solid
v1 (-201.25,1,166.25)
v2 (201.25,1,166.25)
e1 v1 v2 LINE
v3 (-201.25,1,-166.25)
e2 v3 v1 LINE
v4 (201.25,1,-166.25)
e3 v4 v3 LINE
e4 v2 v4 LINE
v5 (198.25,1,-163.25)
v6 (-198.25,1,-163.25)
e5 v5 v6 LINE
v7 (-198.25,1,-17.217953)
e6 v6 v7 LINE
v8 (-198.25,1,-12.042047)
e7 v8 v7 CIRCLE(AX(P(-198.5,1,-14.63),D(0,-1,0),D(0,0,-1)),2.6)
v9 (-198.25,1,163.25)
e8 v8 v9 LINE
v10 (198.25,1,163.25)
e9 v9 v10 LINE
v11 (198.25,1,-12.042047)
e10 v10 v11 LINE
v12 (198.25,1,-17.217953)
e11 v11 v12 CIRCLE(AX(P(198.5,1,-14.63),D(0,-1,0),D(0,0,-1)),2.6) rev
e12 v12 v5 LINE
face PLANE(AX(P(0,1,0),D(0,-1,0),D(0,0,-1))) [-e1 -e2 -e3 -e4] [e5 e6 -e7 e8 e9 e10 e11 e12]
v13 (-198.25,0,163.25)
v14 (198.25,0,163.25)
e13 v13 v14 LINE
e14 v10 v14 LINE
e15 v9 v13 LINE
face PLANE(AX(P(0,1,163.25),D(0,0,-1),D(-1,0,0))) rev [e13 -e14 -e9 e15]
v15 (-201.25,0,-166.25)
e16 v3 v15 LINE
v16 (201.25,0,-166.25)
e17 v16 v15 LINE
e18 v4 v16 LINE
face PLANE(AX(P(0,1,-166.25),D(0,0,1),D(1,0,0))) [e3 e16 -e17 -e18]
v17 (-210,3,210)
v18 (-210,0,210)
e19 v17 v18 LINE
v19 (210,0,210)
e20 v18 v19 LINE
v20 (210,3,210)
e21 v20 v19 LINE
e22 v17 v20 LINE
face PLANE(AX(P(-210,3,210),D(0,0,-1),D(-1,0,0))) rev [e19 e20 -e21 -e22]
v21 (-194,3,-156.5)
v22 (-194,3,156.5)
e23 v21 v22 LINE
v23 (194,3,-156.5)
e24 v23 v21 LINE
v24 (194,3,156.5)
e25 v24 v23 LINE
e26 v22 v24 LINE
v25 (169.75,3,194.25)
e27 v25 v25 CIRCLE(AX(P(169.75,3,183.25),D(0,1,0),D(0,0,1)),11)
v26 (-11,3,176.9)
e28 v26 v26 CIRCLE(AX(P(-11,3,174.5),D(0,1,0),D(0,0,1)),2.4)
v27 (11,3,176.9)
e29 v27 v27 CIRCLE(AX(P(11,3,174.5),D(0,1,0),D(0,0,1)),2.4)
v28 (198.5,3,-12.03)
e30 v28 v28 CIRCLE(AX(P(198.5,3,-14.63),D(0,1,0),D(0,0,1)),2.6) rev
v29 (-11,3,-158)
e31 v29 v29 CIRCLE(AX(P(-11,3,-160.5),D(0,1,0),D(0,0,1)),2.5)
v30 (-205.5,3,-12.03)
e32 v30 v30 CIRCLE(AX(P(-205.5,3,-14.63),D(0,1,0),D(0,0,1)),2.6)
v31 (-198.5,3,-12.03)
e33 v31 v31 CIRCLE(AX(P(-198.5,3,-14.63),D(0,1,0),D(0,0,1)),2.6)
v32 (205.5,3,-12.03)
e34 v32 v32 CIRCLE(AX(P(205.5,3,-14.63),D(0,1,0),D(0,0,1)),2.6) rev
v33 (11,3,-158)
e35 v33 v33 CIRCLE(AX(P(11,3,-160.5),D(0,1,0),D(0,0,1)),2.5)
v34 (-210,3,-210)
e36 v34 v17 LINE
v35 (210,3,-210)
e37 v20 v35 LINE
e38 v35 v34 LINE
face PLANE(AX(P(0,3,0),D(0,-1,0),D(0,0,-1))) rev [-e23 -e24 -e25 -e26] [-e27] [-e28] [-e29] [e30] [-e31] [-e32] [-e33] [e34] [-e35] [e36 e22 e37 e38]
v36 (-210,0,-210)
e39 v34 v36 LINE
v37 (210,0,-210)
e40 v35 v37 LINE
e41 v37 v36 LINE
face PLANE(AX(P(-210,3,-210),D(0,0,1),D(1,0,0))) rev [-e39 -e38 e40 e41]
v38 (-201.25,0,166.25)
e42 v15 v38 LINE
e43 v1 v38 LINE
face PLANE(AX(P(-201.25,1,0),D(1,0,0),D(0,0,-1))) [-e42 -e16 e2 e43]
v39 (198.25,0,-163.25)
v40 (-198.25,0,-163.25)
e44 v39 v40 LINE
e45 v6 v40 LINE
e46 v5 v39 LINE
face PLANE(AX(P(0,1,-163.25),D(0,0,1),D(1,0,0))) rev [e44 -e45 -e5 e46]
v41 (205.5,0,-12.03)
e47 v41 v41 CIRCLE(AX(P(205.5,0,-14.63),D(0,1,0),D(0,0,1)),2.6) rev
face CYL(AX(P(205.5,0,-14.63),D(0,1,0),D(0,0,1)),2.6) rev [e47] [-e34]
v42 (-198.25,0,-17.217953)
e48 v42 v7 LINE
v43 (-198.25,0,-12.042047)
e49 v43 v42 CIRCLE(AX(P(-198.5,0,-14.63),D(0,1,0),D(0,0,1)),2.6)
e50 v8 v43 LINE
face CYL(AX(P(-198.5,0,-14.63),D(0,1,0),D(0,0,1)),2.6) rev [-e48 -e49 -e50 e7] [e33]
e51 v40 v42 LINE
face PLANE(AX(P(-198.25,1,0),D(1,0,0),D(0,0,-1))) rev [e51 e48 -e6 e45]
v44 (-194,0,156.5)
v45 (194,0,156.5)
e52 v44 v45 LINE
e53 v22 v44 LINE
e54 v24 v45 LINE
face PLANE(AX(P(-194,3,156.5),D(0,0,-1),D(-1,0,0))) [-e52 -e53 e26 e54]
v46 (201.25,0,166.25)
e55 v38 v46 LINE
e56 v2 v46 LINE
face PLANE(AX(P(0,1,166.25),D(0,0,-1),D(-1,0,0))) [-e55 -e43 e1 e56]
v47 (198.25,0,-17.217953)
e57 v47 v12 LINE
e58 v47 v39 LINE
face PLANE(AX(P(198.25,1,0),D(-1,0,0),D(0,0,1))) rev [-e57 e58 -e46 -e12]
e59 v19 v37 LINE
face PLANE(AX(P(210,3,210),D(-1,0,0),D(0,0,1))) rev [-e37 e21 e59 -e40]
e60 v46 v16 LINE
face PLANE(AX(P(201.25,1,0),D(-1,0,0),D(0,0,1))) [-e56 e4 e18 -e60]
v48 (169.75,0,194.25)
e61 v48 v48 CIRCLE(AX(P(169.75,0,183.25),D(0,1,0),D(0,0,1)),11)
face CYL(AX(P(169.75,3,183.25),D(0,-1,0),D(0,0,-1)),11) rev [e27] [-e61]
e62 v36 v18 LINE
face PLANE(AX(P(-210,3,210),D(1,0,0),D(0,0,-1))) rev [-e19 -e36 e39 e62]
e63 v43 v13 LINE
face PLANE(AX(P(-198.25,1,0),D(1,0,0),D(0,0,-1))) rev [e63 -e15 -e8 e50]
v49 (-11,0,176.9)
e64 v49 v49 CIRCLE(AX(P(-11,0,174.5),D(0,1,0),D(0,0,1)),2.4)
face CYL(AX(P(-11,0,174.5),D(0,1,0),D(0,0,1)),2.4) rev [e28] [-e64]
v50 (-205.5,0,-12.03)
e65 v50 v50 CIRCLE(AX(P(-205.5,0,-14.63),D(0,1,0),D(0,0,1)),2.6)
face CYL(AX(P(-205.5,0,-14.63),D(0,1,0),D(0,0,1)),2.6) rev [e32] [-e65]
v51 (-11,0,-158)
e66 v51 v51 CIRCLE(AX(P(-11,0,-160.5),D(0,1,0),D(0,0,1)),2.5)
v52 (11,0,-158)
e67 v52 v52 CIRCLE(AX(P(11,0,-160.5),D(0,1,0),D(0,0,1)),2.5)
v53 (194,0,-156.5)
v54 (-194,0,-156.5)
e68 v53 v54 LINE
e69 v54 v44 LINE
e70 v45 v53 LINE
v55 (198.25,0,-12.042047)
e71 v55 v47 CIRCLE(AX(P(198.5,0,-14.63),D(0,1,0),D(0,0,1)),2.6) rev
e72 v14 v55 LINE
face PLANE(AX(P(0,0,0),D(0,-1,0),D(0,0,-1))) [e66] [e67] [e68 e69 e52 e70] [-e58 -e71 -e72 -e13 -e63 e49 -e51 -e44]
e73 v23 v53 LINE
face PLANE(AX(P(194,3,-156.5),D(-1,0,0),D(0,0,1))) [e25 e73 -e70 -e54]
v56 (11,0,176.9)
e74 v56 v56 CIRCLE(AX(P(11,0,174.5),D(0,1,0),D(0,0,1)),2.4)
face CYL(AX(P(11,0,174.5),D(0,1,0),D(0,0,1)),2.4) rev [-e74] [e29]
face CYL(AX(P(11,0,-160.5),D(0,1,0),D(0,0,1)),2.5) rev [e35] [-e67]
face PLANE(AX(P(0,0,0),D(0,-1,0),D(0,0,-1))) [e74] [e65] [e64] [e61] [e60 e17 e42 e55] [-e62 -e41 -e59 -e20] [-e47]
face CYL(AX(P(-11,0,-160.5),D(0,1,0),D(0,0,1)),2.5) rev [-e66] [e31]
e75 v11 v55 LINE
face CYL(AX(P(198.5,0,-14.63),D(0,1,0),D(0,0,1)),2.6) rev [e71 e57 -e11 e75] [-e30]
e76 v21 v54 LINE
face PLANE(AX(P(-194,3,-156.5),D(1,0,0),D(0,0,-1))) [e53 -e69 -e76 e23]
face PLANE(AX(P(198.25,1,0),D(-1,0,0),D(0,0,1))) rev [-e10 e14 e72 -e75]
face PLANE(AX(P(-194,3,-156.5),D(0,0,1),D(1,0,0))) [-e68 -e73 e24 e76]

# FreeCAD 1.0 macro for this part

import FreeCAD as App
import Part
import Sketcher

V = App.Vector
Q = App.Units.Quantity


def add_polygon(sketch, points):
    """Adds a closed chain of lines whose ends are joined by coincident constraints."""
    first, n = sketch.GeometryCount, len(points)
    for a, b in zip(points, points[1:] + points[:1]):
        sketch.addGeometry(Part.LineSegment(App.Vector(*a, 0), App.Vector(*b, 0)), False)
    for i in range(n):
        sketch.addConstraint(Sketcher.Constraint("Coincident", first + i, 2, first + (i + 1) % n, 1))

doc = App.newDocument("Part")
body = doc.addObject("PartDesign::Body", "Body")

# Sketch on XZ plane
sketch1 = doc.addObject("Sketcher::SketchObject", "Sketch")
body.addObject(sketch1)
sketch1.AttachmentSupport = (doc.XZ_Plane, [""])
sketch1.MapMode = "FlatFace"
add_polygon(sketch1, [(-210, -210), (-210, 210), (210, 210), (210, -210)])  # lines 0-3
sketch1.addGeometry(Part.Circle(V(170, 183, 0), V(0, 0, 1), 11), False)  # 4
add_polygon(sketch1, [(194, 156), (-194, 156), (-194, -156), (194, -156)])  # lines 5-8
sketch1.addConstraint([
    Sketcher.Constraint("Vertical", 0),
    Sketcher.Constraint("Horizontal", 1),
    Sketcher.Constraint("Vertical", 2),
    Sketcher.Constraint("Horizontal", 3),
    Sketcher.Constraint("Horizontal", 5),
    Sketcher.Constraint("Vertical", 6),
    Sketcher.Constraint("Horizontal", 7),
    Sketcher.Constraint("Vertical", 8),
    Sketcher.Constraint("Symmetric", 0, 2, 2, 2, -1, 1),
    Sketcher.Constraint("Symmetric", 5, 2, 7, 2, -1, 1),
    Sketcher.Constraint("Equal", 3, 0),
    Sketcher.Constraint("Diameter", 4, Q("22 mm")),
    Sketcher.Constraint("DistanceX", 1, 1, 1, 2, Q("420 mm")),
    Sketcher.Constraint("DistanceX", 5, 2, 5, 1, Q("388 mm")),
    Sketcher.Constraint("DistanceY", 6, 2, 6, 1, Q("313 mm")),
    Sketcher.Constraint("DistanceX", -1, 1, 4, 3, Q("169.75 mm")),
    Sketcher.Constraint("DistanceY", -1, 1, 4, 3, Q("183.25 mm")),
])
pad1 = doc.addObject("PartDesign::Pad", "Pad")
body.addObject(pad1)
pad1.Profile = sketch1
pad1.Length = 3
pad1.Reversed = True

# Sketch on XZ plane
sketch2 = doc.addObject("Sketcher::SketchObject", "Sketch001")
body.addObject(sketch2)
sketch2.AttachmentSupport = (doc.XZ_Plane, [""])
sketch2.MapMode = "FlatFace"
add_polygon(sketch2, [(-201, 166), (-201, -166), (201, -166), (201, 166)])  # lines 0-3
add_polygon(sketch2, [(198, -163), (-198, -163), (-198, 163), (198, 163)])  # lines 4-7
sketch2.addConstraint([
    Sketcher.Constraint("Vertical", 0),
    Sketcher.Constraint("Horizontal", 1),
    Sketcher.Constraint("Vertical", 2),
    Sketcher.Constraint("Horizontal", 3),
    Sketcher.Constraint("Horizontal", 4),
    Sketcher.Constraint("Vertical", 5),
    Sketcher.Constraint("Horizontal", 6),
    Sketcher.Constraint("Vertical", 7),
    Sketcher.Constraint("Symmetric", 0, 2, 2, 2, -1, 1),
    Sketcher.Constraint("Symmetric", 4, 2, 6, 2, -1, 1),
    Sketcher.Constraint("DistanceX", 1, 1, 1, 2, Q("402.5 mm")),
    Sketcher.Constraint("DistanceX", 4, 2, 4, 1, Q("396.5 mm")),
    Sketcher.Constraint("DistanceY", 0, 2, 0, 1, Q("332.5 mm")),
    Sketcher.Constraint("DistanceY", 5, 1, 5, 2, Q("326.5 mm")),
])
pocket1 = doc.addObject("PartDesign::Pocket", "Pocket")
body.addObject(pocket1)
pocket1.Profile = sketch2
pocket1.Length = 1

# Sketch on XZ plane
sketch3 = doc.addObject("Sketcher::SketchObject", "Sketch002")
body.addObject(sketch3)
sketch3.AttachmentSupport = (doc.XZ_Plane, [""])
sketch3.MapMode = "FlatFace"
sketch3.AttachmentOffset = App.Placement(V(0, 0, -3), App.Rotation())
sketch3.addGeometry([
    Part.Circle(V(-205.5, -14.6, 0), V(0, 0, 1), 2.6),  # 0
    Part.Circle(V(-198.5, -14.6, 0), V(0, 0, 1), 2.6),  # 1
    Part.Circle(V(198.5, -14.6, 0), V(0, 0, 1), 2.6),  # 2
    Part.Circle(V(205.5, -14.6, 0), V(0, 0, 1), 2.6),  # 3
    Part.Circle(V(-11, -160.5, 0), V(0, 0, 1), 2.5),  # 4
    Part.Circle(V(11, -160.5, 0), V(0, 0, 1), 2.5),  # 5
    Part.Circle(V(-11, 174.5, 0), V(0, 0, 1), 2.4),  # 6
    Part.Circle(V(11, 174.5, 0), V(0, 0, 1), 2.4),  # 7
], False)
sketch3.addConstraint([
    Sketcher.Constraint("Equal", 0, 1),
    Sketcher.Constraint("Equal", 1, 2),
    Sketcher.Constraint("Equal", 2, 3),
    Sketcher.Constraint("Equal", 4, 5),
    Sketcher.Constraint("Equal", 6, 7),
    Sketcher.Constraint("Symmetric", 1, 3, 2, 3, -2),
    Sketcher.Constraint("Symmetric", 0, 3, 3, 3, -2),
    Sketcher.Constraint("Symmetric", 4, 3, 5, 3, -2),
    Sketcher.Constraint("Symmetric", 6, 3, 7, 3, -2),
    Sketcher.Constraint("Horizontal", 0, 3, 1, 3),
    Sketcher.Constraint("Vertical", 4, 3, 6, 3),
    Sketcher.Constraint("Diameter", 4, Q("5 mm")),
    Sketcher.Constraint("Diameter", 0, Q("5.2 mm")),
    Sketcher.Constraint("Diameter", 6, Q("4.8 mm")),
    Sketcher.Constraint("DistanceX", 4, 3, -1, 1, Q("11 mm")),
    Sketcher.Constraint("DistanceX", 0, 3, 1, 3, Q("7 mm")),
    Sketcher.Constraint("DistanceX", 1, 3, 2, 3, Q("397 mm")),
    Sketcher.Constraint("DistanceY", 4, 3, 6, 3, Q("335 mm")),
    Sketcher.Constraint("DistanceY", 4, 3, -1, 1, Q("160.5 mm")),
    Sketcher.Constraint("DistanceY", 0, 3, -1, 1, Q("14.63 mm")),
])
pocket2 = doc.addObject("PartDesign::Pocket", "Pocket001")
body.addObject(pocket2)
pocket2.Profile = sketch3
pocket2.Type = "ThroughAll"
pocket2.Reversed = True

doc.recompute()
